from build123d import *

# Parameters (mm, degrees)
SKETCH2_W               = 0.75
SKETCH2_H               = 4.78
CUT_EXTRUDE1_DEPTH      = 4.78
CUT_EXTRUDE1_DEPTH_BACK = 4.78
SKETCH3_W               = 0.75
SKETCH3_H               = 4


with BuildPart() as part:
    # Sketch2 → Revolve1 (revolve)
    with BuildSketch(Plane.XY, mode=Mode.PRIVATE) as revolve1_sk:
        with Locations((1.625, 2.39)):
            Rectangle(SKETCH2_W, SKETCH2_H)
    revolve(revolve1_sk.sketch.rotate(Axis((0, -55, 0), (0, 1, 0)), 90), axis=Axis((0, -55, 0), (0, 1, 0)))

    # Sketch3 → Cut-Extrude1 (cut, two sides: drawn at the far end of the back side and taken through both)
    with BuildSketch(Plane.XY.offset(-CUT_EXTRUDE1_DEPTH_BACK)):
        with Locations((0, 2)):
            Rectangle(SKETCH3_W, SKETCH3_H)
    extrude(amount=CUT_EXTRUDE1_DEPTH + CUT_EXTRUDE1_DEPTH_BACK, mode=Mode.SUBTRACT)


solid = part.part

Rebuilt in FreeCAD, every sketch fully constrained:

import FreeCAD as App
import Part
import Sketcher
from FreeCAD import Vector


def add_polygon(sketch, points):
    """Adds a closed chain of lines whose ends are joined by coincident constraints."""
    first, n = sketch.GeometryCount, len(points)
    for a, b in zip(points, points[1:] + points[:1]):
        sketch.addGeometry(Part.LineSegment(App.Vector(*a, 0), App.Vector(*b, 0)), False)
    for i in range(n):
        sketch.addConstraint(Sketcher.Constraint("Coincident", first + i, 2, first + (i + 1) % n, 1))

doc = App.newDocument("Part")
params = doc.addObject("Spreadsheet::Sheet", "Params")
for row, (alias, value) in enumerate([
    ("sketch1_width", "0.75 mm"),
    ("sketch1_height", "4.78 mm"),
    ("revolution_angle", "360 deg"),
    ("sketch2_height", "4 mm"),
    ("sketch2_width", "0.75 mm"),
], start=1):
    params.set(f"A{row}", alias)
    params.set(f"B{row}", "=" + value)
    params.setAlias(f"B{row}", alias)

body = doc.addObject("PartDesign::Body", "Body")

sketch1 = body.newObject("Sketcher::SketchObject", "Sketch")
sketch1.AttachmentSupport = (doc.getObject("XY_Plane"), [""])
sketch1.MapMode = "FlatFace"
add_polygon(sketch1, [(1.25, 4.78), (1.25, 0), (2, 0), (2, 4.78)])
sketch1.addConstraint([
    Sketcher.Constraint("Vertical", 0),
    Sketcher.Constraint("Horizontal", 1),
    Sketcher.Constraint("Vertical", 2),
    Sketcher.Constraint("Horizontal", 3),
    Sketcher.Constraint("PointOnObject", 0, 2, -1),
    Sketcher.Constraint("DistanceX", -1, 1, 1, 2, 2.0),
    Sketcher.Constraint("DistanceX", 1, 1, 1, 2, 0.75),
    Sketcher.Constraint("DistanceY", 0, 2, 0, 1, 4.78),
])
sketch1.setExpression("Constraints[10]", "Params.sketch1_width")
sketch1.setExpression("Constraints[11]", "Params.sketch1_height")
revolution = body.newObject("PartDesign::Revolution", "Revolution")
revolution.Profile = sketch1
revolution.ReferenceAxis = (sketch1, ["V_Axis"])
revolution.setExpression("Angle", "Params.revolution_angle")

sketch2 = body.newObject("Sketcher::SketchObject", "Sketch001")
sketch2.AttachmentSupport = (doc.getObject("XY_Plane"), [""])
sketch2.MapMode = "FlatFace"
add_polygon(sketch2, [(-0.375, 4), (-0.375, 0), (0.375, 0), (0.375, 4)])
sketch2.addConstraint([
    Sketcher.Constraint("Vertical", 0),
    Sketcher.Constraint("Horizontal", 1),
    Sketcher.Constraint("Vertical", 2),
    Sketcher.Constraint("Horizontal", 3),
    Sketcher.Constraint("Symmetric", 0, 2, 1, 2, -1, 1),
    Sketcher.Constraint("DistanceY", 0, 2, 0, 1, 4.0),
    Sketcher.Constraint("DistanceX", 1, 1, 1, 2, 0.75),
])
sketch2.setExpression("Constraints[9]", "Params.sketch2_height")
sketch2.setExpression("Constraints[10]", "Params.sketch2_width")
pocket1 = body.newObject("PartDesign::Pocket", "Pocket")
pocket1.Profile = sketch2
pocket1.Type = "ThroughAll"
pocket1.Midplane = True

doc.recompute()
